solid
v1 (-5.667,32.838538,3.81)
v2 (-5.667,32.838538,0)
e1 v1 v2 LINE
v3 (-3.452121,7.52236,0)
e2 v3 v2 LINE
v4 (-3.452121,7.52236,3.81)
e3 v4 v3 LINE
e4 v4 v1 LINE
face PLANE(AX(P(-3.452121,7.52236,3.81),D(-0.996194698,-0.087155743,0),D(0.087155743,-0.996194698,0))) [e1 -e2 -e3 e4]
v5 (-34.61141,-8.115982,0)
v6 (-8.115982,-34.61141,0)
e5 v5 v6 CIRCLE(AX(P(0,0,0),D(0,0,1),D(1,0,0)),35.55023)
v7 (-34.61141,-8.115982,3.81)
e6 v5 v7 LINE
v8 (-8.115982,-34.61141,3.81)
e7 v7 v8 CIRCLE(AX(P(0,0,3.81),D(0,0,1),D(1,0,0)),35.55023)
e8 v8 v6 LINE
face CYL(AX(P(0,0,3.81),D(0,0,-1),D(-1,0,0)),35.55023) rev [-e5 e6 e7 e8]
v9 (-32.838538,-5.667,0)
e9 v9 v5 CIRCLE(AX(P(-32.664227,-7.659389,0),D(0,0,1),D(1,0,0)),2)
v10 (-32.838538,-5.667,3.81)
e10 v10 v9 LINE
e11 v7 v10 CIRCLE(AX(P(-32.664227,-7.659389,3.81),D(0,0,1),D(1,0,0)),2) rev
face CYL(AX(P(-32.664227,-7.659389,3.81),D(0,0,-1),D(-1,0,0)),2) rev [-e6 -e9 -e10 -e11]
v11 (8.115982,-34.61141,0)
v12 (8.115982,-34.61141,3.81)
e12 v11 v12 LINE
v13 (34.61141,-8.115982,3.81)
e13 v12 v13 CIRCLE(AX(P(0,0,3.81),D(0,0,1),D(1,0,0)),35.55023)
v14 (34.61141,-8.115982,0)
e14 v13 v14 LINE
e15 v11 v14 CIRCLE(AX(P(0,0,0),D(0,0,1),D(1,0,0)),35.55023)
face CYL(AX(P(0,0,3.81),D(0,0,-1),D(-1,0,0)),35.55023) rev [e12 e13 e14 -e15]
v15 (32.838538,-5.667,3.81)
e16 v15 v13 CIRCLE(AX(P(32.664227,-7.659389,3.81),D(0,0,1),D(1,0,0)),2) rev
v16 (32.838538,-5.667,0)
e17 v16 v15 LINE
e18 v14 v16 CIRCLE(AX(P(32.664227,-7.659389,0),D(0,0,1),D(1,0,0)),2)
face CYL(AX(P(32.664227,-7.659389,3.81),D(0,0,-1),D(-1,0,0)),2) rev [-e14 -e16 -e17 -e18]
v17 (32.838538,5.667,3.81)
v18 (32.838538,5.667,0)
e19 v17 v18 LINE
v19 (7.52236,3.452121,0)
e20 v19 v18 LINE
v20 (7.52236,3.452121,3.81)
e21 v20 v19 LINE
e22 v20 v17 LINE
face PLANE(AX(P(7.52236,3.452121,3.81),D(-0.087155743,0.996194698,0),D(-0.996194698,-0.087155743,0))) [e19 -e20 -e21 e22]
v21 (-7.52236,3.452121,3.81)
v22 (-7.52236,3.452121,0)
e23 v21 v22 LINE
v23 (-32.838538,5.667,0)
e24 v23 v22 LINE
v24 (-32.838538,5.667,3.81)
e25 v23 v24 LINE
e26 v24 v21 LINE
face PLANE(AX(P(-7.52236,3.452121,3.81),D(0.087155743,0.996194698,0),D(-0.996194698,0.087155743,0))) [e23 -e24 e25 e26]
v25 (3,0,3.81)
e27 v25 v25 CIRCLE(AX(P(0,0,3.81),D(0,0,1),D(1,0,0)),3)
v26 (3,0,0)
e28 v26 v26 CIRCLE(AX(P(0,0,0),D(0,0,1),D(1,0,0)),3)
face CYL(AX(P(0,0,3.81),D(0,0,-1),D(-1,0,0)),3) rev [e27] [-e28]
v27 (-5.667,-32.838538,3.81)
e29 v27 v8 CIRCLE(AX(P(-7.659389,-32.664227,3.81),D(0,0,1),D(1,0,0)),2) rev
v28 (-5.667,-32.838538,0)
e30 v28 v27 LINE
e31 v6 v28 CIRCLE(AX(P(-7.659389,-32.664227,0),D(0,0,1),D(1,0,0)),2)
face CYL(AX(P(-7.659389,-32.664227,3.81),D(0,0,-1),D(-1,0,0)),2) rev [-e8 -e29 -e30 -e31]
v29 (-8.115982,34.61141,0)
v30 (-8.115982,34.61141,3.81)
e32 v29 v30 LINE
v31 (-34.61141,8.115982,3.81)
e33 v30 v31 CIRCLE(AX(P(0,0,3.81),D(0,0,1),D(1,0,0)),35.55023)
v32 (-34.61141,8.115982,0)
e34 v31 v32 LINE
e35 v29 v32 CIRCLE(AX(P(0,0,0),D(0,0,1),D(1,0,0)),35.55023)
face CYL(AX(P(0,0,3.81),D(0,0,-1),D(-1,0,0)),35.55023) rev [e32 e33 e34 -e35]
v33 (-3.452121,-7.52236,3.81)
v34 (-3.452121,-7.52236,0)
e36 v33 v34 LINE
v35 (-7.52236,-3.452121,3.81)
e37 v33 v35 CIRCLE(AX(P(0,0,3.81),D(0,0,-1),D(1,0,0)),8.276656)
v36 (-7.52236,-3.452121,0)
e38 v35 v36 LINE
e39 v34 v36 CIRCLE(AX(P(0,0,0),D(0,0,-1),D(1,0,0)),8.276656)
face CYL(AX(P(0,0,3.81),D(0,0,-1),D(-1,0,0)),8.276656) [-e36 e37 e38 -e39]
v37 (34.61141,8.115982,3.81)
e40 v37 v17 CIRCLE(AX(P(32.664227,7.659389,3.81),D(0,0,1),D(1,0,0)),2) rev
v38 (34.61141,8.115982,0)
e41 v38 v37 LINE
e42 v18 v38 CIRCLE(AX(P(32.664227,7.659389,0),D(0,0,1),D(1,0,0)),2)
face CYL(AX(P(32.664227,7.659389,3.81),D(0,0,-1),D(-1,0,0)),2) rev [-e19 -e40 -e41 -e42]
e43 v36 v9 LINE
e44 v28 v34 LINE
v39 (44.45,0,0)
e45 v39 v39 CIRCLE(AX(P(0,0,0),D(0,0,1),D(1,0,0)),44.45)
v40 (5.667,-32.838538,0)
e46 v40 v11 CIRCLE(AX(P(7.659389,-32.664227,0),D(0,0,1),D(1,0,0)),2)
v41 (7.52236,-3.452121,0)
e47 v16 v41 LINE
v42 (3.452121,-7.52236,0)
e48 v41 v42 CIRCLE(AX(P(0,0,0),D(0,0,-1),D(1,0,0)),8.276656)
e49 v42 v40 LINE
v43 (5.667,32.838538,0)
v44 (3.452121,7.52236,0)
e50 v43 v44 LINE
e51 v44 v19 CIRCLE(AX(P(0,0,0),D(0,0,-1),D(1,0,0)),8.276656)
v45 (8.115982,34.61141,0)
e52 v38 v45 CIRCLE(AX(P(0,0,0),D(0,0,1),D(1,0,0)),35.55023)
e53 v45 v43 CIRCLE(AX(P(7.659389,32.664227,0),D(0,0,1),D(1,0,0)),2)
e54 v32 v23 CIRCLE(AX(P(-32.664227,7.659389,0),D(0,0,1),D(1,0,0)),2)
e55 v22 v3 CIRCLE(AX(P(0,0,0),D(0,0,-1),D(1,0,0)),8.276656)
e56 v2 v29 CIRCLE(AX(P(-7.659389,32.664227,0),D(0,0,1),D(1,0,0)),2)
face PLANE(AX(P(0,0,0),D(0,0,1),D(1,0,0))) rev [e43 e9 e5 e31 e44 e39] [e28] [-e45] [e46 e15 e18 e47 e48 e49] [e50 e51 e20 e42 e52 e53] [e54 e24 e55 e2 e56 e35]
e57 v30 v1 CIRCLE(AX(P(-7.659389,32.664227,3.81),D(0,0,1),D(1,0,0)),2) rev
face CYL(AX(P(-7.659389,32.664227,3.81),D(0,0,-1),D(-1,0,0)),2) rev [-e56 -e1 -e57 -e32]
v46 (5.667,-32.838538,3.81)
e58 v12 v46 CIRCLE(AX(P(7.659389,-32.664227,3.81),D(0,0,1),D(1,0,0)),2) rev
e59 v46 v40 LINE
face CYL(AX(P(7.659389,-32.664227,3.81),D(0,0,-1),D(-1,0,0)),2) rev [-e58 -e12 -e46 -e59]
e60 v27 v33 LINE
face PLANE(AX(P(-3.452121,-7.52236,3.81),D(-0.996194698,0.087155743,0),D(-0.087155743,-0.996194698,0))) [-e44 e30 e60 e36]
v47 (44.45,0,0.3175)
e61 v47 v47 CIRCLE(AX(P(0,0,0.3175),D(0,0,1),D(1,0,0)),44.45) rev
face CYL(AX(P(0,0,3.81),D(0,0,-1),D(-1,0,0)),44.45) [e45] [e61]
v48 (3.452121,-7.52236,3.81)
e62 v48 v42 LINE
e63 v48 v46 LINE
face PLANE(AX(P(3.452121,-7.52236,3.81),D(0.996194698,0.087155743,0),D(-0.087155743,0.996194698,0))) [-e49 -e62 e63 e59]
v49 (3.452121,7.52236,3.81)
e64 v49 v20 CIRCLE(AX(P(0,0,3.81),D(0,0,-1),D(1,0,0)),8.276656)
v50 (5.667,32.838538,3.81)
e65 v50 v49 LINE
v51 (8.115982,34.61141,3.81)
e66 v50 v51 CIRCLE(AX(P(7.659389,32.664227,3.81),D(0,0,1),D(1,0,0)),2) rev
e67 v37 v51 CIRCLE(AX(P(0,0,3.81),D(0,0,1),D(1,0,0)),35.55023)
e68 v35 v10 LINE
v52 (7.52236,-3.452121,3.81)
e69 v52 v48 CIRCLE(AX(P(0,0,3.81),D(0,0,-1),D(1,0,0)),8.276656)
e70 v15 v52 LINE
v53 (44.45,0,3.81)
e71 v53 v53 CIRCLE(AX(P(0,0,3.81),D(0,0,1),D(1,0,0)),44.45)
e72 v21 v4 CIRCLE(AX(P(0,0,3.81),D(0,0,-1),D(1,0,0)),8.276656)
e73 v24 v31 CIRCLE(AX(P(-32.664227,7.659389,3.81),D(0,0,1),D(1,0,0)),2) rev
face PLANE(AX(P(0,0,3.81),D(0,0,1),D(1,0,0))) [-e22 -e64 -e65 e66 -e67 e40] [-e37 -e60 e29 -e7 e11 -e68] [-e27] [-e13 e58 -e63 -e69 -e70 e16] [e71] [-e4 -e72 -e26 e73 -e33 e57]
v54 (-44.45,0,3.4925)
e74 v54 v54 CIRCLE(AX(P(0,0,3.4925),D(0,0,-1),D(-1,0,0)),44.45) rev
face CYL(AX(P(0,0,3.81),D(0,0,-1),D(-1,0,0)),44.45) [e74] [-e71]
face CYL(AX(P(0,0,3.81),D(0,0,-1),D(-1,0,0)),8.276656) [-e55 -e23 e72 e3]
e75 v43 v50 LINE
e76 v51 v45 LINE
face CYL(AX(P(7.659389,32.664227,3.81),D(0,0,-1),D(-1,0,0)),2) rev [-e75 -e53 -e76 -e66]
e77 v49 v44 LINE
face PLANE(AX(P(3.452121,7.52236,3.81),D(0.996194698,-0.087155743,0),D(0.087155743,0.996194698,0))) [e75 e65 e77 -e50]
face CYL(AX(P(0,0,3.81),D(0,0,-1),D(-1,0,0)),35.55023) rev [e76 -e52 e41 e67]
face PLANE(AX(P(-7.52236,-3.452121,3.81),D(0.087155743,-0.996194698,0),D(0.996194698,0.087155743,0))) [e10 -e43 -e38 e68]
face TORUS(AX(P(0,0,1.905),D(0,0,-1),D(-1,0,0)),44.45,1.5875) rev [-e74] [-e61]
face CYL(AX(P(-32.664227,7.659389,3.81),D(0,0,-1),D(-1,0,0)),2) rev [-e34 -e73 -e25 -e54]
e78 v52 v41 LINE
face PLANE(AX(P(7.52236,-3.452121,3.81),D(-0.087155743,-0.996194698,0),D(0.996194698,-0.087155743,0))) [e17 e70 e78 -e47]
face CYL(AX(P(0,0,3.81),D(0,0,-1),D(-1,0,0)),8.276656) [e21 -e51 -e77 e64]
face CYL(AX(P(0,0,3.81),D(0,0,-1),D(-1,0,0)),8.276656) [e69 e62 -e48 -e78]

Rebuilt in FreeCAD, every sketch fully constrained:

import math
import FreeCAD as App
import Part
import Sketcher
from FreeCAD import Vector
Q = App.Units.Quantity


def edges_at(feature, points):
    """Names of the edges that pass closest to the given points."""
    edges = feature.Shape.Edges
    near = lambda p: min(range(len(edges)), key=lambda i: edges[i].distToShape(Part.Vertex(*p))[0])
    return sorted({f"Edge{near(p) + 1}" for p in points})

doc = App.newDocument("Part")
body = doc.addObject("PartDesign::Body", "Body")

sketch1 = body.newObject("Sketcher::SketchObject", "Sketch")
sketch1.AttachmentSupport = (doc.getObject("XY_Plane"), [""])
sketch1.MapMode = "FlatFace"
sketch1.addGeometry([
    Part.Circle(Vector(0, 0, 0), Vector(0, 0, 1), 44.45),
    Part.ArcOfCircle(Part.Circle(Vector(0, 0, 0), Vector(0, 0, 1), 8.276656), math.radians(-155.348916), math.radians(-114.651084)),
    Part.LineSegment(Vector(-3.452121, -7.52236, 0), Vector(-5.861672, -35.063652, 0)),
    Part.ArcOfCircle(Part.Circle(Vector(0, 0, 0), Vector(0, 0, 1), 35.55023), math.radians(-170.509491), math.radians(-99.490509)),
    Part.LineSegment(Vector(-35.063652, -5.861672, 0), Vector(-7.52236, -3.452121, 0)),
    Part.ArcOfCircle(Part.Circle(Vector(0, 0, 0), Vector(0, 0, 1), 8.276656), math.radians(-65.348916), math.radians(-24.651084)),
    Part.LineSegment(Vector(7.52236, -3.452121, 0), Vector(35.063652, -5.861672, 0)),
    Part.ArcOfCircle(Part.Circle(Vector(0, 0, 0), Vector(0, 0, 1), 35.55023), math.radians(-80.509491), math.radians(-9.490509)),
    Part.LineSegment(Vector(5.861672, -35.063652, 0), Vector(3.452121, -7.52236, 0)),
    Part.LineSegment(Vector(-5.861672, 35.063652, 0), Vector(-3.452121, 7.52236, 0)),
    Part.ArcOfCircle(Part.Circle(Vector(0, 0, 0), Vector(0, 0, 1), 8.276656), math.radians(114.651084), math.radians(155.348916)),
    Part.LineSegment(Vector(-7.52236, 3.452121, 0), Vector(-35.063652, 5.861672, 0)),
    Part.ArcOfCircle(Part.Circle(Vector(0, 0, 0), Vector(0, 0, 1), 35.55023), math.radians(99.490509), math.radians(170.509491)),
    Part.Circle(Vector(0, 0, 0), Vector(0, 0, 1), 3),
    Part.ArcOfCircle(Part.Circle(Vector(0, 0, 0), Vector(0, 0, 1), 8.276656), math.radians(24.651084), math.radians(65.348916)),
    Part.LineSegment(Vector(3.452121, 7.52236, 0), Vector(5.861672, 35.063652, 0)),
    Part.ArcOfCircle(Part.Circle(Vector(0, 0, 0), Vector(0, 0, 1), 35.55023), math.radians(9.490509), math.radians(80.509491)),
    Part.LineSegment(Vector(35.063652, 5.861672, 0), Vector(7.52236, 3.452121, 0)),
], False)
sketch1.addConstraint([
    Sketcher.Constraint("Coincident", 1, 2, 2, 1),
    Sketcher.Constraint("Coincident", 2, 2, 3, 2),
    Sketcher.Constraint("Coincident", 3, 1, 4, 1),
    Sketcher.Constraint("Coincident", 4, 2, 1, 1),
    Sketcher.Constraint("Coincident", 5, 2, 6, 1),
    Sketcher.Constraint("Coincident", 6, 2, 7, 2),
    Sketcher.Constraint("Coincident", 7, 1, 8, 1),
    Sketcher.Constraint("Coincident", 8, 2, 5, 1),
    Sketcher.Constraint("Coincident", 9, 2, 10, 1),
    Sketcher.Constraint("Coincident", 10, 2, 11, 1),
    Sketcher.Constraint("Coincident", 11, 2, 12, 2),
    Sketcher.Constraint("Coincident", 12, 1, 9, 1),
    Sketcher.Constraint("Coincident", 14, 2, 15, 1),
    Sketcher.Constraint("Coincident", 15, 2, 16, 2),
    Sketcher.Constraint("Coincident", 16, 1, 17, 1),
    Sketcher.Constraint("Coincident", 17, 2, 14, 1),
    Sketcher.Constraint("Coincident", 0, 3, -1, 1),
    Sketcher.Constraint("Coincident", 1, 3, -1, 1),
    Sketcher.Constraint("Coincident", 3, 3, -1, 1),
    Sketcher.Constraint("Coincident", 5, 3, -1, 1),
    Sketcher.Constraint("Coincident", 7, 3, -1, 1),
    Sketcher.Constraint("Coincident", 10, 3, -1, 1),
    Sketcher.Constraint("Coincident", 12, 3, -1, 1),
    Sketcher.Constraint("Coincident", 13, 3, -1, 1),
    Sketcher.Constraint("Coincident", 14, 3, -1, 1),
    Sketcher.Constraint("Coincident", 16, 3, -1, 1),
    Sketcher.Constraint("Equal", 1, 5),
    Sketcher.Constraint("Equal", 3, 7),
    Sketcher.Constraint("Equal", 5, 10),
    Sketcher.Constraint("Equal", 7, 12),
    Sketcher.Constraint("Equal", 10, 14),
    Sketcher.Constraint("Equal", 12, 16),
    Sketcher.Constraint("Perpendicular", 2, 6),
    Sketcher.Constraint("Perpendicular", 4, 8),
    Sketcher.Constraint("Parallel", 8, 9),
    Sketcher.Constraint("Parallel", 6, 11),
    Sketcher.Constraint("Perpendicular", 11, 15),
    Sketcher.Constraint("Perpendicular", 9, 17),
    Sketcher.Constraint("Horizontal", 4, 2, 5, 2),
    Sketcher.Constraint("Horizontal", 3, 1, 6, 2),
    Sketcher.Constraint("Horizontal", 2, 2, 7, 1),
    Sketcher.Constraint("Horizontal", 9, 2, 14, 2),
    Sketcher.Constraint("Horizontal", 11, 2, 16, 1),
    Sketcher.Constraint("Vertical", 1, 2, 9, 2),
    Sketcher.Constraint("Vertical", 4, 2, 10, 2),
    Sketcher.Constraint("Equal", 2, 4),
    Sketcher.Constraint("Diameter", 0, Q("3.5 in")),
    Sketcher.Constraint("Angle", 2, Q("-95 deg")),
    Sketcher.Constraint("Diameter", 13, Q("6 mm")),
    Sketcher.Constraint("Radius", 3, Q("35.55023 mm")),
    Sketcher.Constraint("Radius", 1, Q("8.276656 mm")),
    Sketcher.Constraint("DistanceX", 1, 2, -1, 1, Q("3.452121 mm")),
])
pad1 = body.newObject("PartDesign::Pad", "Pad")
pad1.Profile = sketch1
pad1.Length = Q("0.15 in")
doc.recompute()

fillet = body.newObject("PartDesign::Fillet", "Fillet")
fillet.Base = (pad1, edges_at(pad1, [(35.064, -5.862, 1.905), (35.064, 5.862, 1.905)]))
fillet.Radius = 2
doc.recompute()

fillet2 = body.newObject("PartDesign::Fillet", "Fillet001")
fillet2.Base = (fillet, edges_at(fillet, [
    (5.862, -35.064, 1.905),
    (-35.064, -5.862, 1.905),
    (-5.862, -35.064, 1.905),
    (5.862, 35.064, 1.905),
    (-5.862, 35.064, 1.905),
    (-35.064, 5.862, 1.905),
]))
fillet2.Radius = 2

sketch2 = body.newObject("Sketcher::SketchObject", "Sketch001")
sketch2.AttachmentSupport = (doc.getObject("XZ_Plane"), [""])
sketch2.MapMode = "FlatFace"
sketch2.addGeometry(Part.Circle(Vector(-44.45, 1.905, 0), Vector(0, 0, 1), 1.5875), False)
sketch2.addConstraint([
    Sketcher.Constraint("Diameter", 0, Q("0.125 in")),
    Sketcher.Constraint("DistanceX", 0, 3, -1, 1, Q("1.75 in")),
    Sketcher.Constraint("DistanceY", -1, 1, 0, 3, Q("0.075 in")),
])
groove = body.newObject("PartDesign::Groove", "Groove")
groove.Profile = sketch2
groove.ReferenceAxis = (sketch2, ["V_Axis"])
groove.Angle = 360

doc.recompute()
